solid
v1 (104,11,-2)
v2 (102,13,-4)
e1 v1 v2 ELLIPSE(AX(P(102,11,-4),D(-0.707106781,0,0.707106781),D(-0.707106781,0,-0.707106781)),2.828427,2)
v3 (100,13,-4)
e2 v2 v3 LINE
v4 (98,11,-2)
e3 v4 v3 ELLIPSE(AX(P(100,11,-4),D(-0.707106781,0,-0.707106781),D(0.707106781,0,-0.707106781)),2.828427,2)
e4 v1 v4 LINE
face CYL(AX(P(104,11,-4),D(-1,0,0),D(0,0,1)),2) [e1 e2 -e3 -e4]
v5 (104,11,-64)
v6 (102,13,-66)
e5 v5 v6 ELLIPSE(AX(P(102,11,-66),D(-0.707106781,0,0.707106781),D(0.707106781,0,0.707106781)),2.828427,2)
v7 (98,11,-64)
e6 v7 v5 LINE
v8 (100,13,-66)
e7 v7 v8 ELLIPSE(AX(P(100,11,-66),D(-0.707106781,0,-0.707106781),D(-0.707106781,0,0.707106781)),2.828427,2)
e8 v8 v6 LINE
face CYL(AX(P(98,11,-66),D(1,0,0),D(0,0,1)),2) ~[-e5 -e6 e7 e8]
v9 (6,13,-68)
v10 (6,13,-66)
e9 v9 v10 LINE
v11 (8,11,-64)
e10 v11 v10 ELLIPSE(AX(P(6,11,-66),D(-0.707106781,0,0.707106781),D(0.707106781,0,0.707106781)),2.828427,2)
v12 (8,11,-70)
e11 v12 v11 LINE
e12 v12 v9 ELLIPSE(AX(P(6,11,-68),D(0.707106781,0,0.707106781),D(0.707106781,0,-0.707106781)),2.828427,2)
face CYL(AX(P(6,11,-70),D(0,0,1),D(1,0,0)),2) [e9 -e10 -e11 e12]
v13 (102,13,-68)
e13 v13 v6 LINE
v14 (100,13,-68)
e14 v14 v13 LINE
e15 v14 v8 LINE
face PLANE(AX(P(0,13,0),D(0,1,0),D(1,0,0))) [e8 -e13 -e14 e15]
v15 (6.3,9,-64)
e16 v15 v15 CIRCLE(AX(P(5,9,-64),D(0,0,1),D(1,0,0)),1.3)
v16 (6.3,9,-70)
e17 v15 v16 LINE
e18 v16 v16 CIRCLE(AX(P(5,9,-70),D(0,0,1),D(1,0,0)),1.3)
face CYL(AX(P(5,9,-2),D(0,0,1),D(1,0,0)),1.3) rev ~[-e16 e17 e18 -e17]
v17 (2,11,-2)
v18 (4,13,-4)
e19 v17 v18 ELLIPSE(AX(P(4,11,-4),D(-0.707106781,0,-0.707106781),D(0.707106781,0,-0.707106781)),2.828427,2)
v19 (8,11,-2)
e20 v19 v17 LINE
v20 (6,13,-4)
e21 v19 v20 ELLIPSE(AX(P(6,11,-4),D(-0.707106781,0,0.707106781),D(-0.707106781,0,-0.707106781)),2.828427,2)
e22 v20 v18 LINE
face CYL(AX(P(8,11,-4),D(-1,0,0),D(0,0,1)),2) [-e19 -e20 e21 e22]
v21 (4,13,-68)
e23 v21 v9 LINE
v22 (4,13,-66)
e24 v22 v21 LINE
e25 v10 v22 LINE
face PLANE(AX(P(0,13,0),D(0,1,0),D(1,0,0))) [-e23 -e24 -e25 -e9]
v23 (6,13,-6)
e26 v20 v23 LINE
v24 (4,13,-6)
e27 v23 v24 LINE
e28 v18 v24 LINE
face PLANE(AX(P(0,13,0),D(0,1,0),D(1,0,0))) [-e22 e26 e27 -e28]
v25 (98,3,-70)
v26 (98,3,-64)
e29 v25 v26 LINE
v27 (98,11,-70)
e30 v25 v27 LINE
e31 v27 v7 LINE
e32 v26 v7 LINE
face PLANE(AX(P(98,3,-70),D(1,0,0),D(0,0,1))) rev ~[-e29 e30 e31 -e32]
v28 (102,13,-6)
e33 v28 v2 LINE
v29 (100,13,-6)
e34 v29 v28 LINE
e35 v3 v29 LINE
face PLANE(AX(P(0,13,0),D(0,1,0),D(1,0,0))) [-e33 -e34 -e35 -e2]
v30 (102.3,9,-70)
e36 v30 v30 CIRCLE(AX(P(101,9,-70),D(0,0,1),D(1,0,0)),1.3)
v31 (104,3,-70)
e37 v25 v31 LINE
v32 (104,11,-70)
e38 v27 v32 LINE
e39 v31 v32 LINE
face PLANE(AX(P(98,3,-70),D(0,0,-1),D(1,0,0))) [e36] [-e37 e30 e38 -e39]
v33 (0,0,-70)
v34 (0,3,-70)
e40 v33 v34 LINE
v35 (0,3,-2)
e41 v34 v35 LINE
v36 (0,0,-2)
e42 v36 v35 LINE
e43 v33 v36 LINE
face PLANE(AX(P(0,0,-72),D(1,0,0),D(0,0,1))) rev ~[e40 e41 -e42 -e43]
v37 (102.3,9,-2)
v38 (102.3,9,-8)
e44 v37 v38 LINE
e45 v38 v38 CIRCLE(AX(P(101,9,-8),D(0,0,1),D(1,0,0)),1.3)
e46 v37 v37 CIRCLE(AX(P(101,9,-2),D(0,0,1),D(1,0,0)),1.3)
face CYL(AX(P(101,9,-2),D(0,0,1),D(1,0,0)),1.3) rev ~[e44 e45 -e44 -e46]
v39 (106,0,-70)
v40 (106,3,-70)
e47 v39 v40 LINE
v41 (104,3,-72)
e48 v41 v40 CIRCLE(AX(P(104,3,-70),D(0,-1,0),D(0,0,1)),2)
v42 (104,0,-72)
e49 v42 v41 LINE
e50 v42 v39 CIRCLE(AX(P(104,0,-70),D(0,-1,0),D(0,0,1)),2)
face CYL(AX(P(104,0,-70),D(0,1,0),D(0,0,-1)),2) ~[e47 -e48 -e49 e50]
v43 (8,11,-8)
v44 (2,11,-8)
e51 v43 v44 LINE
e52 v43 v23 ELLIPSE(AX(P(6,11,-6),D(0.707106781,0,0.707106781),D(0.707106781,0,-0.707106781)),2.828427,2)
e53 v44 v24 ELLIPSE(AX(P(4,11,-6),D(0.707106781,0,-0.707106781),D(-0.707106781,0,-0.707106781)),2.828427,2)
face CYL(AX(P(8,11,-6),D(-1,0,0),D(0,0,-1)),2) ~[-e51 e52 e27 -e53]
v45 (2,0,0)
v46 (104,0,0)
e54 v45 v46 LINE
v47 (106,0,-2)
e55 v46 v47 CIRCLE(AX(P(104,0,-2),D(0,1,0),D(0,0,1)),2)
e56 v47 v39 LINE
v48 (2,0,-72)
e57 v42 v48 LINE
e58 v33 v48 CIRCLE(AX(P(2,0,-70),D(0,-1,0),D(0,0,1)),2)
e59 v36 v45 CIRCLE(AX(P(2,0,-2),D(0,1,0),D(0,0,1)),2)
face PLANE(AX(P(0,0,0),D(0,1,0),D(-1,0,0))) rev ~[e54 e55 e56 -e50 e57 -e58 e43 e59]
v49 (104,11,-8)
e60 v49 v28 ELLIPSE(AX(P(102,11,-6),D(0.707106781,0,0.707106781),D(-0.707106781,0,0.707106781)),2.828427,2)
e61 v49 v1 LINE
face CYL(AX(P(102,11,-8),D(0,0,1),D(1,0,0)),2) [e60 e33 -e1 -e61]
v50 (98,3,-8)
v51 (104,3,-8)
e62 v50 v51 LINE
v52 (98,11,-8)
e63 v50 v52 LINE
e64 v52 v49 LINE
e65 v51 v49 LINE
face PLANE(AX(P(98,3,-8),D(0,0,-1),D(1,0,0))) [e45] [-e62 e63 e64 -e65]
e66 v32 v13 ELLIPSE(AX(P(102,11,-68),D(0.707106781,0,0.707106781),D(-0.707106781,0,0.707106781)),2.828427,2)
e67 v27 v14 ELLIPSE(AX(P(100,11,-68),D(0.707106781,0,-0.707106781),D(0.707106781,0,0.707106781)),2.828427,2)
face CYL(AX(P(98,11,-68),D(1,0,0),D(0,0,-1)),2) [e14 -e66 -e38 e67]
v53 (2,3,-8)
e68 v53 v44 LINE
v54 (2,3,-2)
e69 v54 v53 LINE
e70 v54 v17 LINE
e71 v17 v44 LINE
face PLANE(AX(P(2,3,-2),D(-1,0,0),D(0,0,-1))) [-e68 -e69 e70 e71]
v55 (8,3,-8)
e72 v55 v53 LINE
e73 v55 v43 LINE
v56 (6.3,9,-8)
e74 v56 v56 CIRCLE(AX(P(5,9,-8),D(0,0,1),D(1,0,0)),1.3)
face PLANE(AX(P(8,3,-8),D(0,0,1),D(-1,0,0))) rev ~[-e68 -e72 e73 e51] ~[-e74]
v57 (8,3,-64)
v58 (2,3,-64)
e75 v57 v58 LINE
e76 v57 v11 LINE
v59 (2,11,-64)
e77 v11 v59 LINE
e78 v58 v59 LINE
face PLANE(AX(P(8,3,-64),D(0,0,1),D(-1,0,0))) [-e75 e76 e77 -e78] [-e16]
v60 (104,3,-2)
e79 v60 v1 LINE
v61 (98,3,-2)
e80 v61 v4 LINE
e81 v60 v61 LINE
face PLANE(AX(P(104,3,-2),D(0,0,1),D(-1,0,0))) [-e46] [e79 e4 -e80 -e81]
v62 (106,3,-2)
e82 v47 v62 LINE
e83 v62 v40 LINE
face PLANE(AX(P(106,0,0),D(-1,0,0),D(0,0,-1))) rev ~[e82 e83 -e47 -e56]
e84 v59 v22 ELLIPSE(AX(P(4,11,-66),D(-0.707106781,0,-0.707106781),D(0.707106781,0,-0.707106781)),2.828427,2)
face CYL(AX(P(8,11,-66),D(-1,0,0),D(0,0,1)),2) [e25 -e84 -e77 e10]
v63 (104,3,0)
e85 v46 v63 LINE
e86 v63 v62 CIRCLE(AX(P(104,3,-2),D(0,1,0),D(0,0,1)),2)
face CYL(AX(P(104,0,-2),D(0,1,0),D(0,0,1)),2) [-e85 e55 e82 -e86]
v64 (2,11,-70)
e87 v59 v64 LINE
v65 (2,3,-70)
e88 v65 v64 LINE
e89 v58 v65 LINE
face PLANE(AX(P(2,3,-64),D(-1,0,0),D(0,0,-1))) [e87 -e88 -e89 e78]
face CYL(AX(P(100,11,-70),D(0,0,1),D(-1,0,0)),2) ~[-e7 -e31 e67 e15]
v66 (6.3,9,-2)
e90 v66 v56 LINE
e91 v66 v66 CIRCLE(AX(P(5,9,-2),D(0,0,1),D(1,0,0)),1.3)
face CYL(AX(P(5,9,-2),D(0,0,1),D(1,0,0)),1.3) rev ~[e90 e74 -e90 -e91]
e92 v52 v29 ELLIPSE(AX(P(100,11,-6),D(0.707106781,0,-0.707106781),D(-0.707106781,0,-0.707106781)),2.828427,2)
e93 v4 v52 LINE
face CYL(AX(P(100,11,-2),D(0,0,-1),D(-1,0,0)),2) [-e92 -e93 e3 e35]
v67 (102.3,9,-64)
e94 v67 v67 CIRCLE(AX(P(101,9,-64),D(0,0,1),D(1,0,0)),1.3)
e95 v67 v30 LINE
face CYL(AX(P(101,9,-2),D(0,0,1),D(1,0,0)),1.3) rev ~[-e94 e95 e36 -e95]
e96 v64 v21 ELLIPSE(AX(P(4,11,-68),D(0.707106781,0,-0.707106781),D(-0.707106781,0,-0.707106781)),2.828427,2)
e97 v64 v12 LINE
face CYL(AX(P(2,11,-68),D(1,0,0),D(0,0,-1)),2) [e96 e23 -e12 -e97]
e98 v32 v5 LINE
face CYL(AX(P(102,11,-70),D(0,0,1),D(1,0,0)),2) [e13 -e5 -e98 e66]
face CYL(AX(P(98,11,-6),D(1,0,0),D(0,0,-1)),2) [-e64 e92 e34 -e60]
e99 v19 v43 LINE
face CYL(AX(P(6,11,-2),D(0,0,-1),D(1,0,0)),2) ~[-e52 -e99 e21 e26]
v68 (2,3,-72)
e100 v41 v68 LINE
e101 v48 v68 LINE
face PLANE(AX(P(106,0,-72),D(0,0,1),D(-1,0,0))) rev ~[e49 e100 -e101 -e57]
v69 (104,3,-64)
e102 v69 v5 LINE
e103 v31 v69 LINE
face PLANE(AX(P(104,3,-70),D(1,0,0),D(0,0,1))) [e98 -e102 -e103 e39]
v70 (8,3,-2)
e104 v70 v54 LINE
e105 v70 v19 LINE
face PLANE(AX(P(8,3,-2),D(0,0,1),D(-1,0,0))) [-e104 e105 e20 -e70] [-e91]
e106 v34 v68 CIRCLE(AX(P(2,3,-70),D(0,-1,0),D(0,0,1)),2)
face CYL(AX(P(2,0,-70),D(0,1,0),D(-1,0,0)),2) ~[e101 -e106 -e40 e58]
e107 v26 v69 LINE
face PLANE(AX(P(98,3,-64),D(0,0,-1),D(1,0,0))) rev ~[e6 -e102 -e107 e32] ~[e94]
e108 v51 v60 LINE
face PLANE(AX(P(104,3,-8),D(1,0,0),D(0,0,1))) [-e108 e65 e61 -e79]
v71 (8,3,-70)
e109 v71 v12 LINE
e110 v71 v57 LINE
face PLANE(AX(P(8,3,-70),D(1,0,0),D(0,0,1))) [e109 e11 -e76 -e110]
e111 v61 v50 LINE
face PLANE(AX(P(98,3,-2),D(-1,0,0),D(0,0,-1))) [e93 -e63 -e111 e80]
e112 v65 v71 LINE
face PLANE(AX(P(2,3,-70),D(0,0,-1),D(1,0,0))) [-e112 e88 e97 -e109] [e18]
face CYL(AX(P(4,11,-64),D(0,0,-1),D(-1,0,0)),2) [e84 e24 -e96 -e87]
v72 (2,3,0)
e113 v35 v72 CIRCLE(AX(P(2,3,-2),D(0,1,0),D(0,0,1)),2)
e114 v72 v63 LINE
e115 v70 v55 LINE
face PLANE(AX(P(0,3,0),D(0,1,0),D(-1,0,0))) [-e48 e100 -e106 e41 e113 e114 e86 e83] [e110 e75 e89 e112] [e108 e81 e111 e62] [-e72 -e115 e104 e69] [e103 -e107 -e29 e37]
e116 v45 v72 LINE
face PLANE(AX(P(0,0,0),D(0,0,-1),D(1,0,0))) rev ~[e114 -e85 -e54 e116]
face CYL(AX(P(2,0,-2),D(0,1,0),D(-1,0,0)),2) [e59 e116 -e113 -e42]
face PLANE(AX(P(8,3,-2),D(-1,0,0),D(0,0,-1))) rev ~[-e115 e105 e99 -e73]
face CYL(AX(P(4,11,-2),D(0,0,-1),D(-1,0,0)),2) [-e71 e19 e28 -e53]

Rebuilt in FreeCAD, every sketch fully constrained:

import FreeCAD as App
import Part
import Sketcher
from FreeCAD import Vector


def edges_at(feature, points):
    """Names of the edges that pass closest to the given points."""
    edges = feature.Shape.Edges
    near = lambda p: min(range(len(edges)), key=lambda i: edges[i].distToShape(Part.Vertex(*p))[0])
    return sorted({f"Edge{near(p) + 1}" for p in points})


def add_polygon(sketch, points):
    """Adds a closed chain of lines whose ends are joined by coincident constraints."""
    first, n = sketch.GeometryCount, len(points)
    for a, b in zip(points, points[1:] + points[:1]):
        sketch.addGeometry(Part.LineSegment(App.Vector(*a, 0), App.Vector(*b, 0)), False)
    for i in range(n):
        sketch.addConstraint(Sketcher.Constraint("Coincident", first + i, 2, first + (i + 1) % n, 1))

doc = App.newDocument("Part")
body = doc.addObject("PartDesign::Body", "Body")

# Sketch on XZ plane
sketch1 = doc.addObject("Sketcher::SketchObject", "Sketch")
body.addObject(sketch1)
sketch1.AttachmentSupport = (doc.XZ_Plane, [""])
sketch1.MapMode = "FlatFace"
add_polygon(sketch1, [(0, -72), (0, 0), (106, 0), (106, -72)])  # lines 0-3
sketch1.addConstraint([
    Sketcher.Constraint("Vertical", 0),
    Sketcher.Constraint("Horizontal", 1),
    Sketcher.Constraint("Vertical", 2),
    Sketcher.Constraint("Horizontal", 3),
    Sketcher.Constraint("Coincident", 0, 2, -1, 1),
    Sketcher.Constraint("DistanceX", 1, 1, 1, 2, 106.0),
    Sketcher.Constraint("DistanceY", 0, 1, 0, 2, 72.0),
])
pad1 = doc.addObject("PartDesign::Pad", "Pad")
body.addObject(pad1)
pad1.Profile = sketch1
pad1.Length = 3
pad1.Reversed = True

# Sketch on XZ plane
sketch2 = doc.addObject("Sketcher::SketchObject", "Sketch001")
body.addObject(sketch2)
sketch2.AttachmentSupport = (doc.XZ_Plane, [""])
sketch2.MapMode = "FlatFace"
sketch2.AttachmentOffset = App.Placement(Vector(0, 0, -3), App.Rotation())
add_polygon(sketch2, [(8, -70), (2, -70), (2, -64), (8, -64)])  # lines 0-3
add_polygon(sketch2, [(104, -70), (98, -70), (98, -64), (104, -64)])  # lines 4-7
add_polygon(sketch2, [(8, -8), (2, -8), (2, -2), (8, -2)])  # lines 8-11
add_polygon(sketch2, [(104, -2), (104, -8), (98, -8), (98, -2)])  # lines 12-15
sketch2.addConstraint([
    Sketcher.Constraint("Horizontal", 0),
    Sketcher.Constraint("Vertical", 1),
    Sketcher.Constraint("Horizontal", 2),
    Sketcher.Constraint("Vertical", 3),
    Sketcher.Constraint("Horizontal", 4),
    Sketcher.Constraint("Vertical", 5),
    Sketcher.Constraint("Horizontal", 6),
    Sketcher.Constraint("Vertical", 7),
    Sketcher.Constraint("Horizontal", 8),
    Sketcher.Constraint("Vertical", 9),
    Sketcher.Constraint("Horizontal", 10),
    Sketcher.Constraint("Vertical", 11),
    Sketcher.Constraint("Vertical", 12),
    Sketcher.Constraint("Horizontal", 13),
    Sketcher.Constraint("Vertical", 14),
    Sketcher.Constraint("Horizontal", 15),
    Sketcher.Constraint("Horizontal", 3, 2, 4, 2),
    Sketcher.Constraint("Horizontal", 2, 2, 5, 2),
    Sketcher.Constraint("Horizontal", 11, 2, 12, 2),
    Sketcher.Constraint("Horizontal", 10, 2, 14, 2),
    Sketcher.Constraint("Vertical", 1, 2, 8, 2),
    Sketcher.Constraint("Vertical", 3, 2, 10, 2),
    Sketcher.Constraint("Vertical", 7, 2, 12, 2),
    Sketcher.Constraint("Vertical", 5, 2, 13, 2),
    Sketcher.Constraint("Equal", 2, 4),
    Sketcher.Constraint("Equal", 15, 1),
    Sketcher.Constraint("Equal", 7, 9),
    Sketcher.Constraint("DistanceX", 0, 2, 0, 1, 6.0),
    Sketcher.Constraint("DistanceX", -1, 1, 0, 2, 2.0),
    Sketcher.Constraint("DistanceY", 9, 2, -1, 1, 2.0),
    Sketcher.Constraint("DistanceY", 0, 2, -1, 1, 70.0),
    Sketcher.Constraint("DistanceX", -1, 1, 4, 2, 98.0),
])
pad2 = doc.addObject("PartDesign::Pad", "Pad001")
body.addObject(pad2)
pad2.Profile = sketch2
pad2.Length = 10
pad2.Reversed = True

# Sketch on XY plane
sketch3 = doc.addObject("Sketcher::SketchObject", "Sketch002")
body.addObject(sketch3)
sketch3.AttachmentSupport = (doc.XY_Plane, [""])
sketch3.MapMode = "FlatFace"
sketch3.AttachmentOffset = App.Placement(Vector(0, 0, -2), App.Rotation())
sketch3.addGeometry([
    Part.Circle(Vector(5, 9, 0), Vector(0, 0, 1), 1.3),
    Part.Circle(Vector(101, 9, 0), Vector(0, 0, 1), 1.3),
], False)
sketch3.addConstraint([
    Sketcher.Constraint("Equal", 0, 1),
    Sketcher.Constraint("Horizontal", 0, 3, 1, 3),
    Sketcher.Constraint("Diameter", 0, 2.6),
    Sketcher.Constraint("DistanceX", -1, 1, 0, 3, 5.0),
    Sketcher.Constraint("DistanceY", -1, 1, 0, 3, 9.0),
    Sketcher.Constraint("DistanceX", -1, 1, 1, 3, 101.0),
])
pocket1 = doc.addObject("PartDesign::Pocket", "Pocket")
body.addObject(pocket1)
pocket1.Profile = sketch3
pocket1.Length = 100
doc.recompute()

fillet = doc.addObject("PartDesign::Fillet", "Fillet")
body.addObject(fillet)
fillet.Base = (pocket1, edges_at(pocket1, [
    (106, 1.5, 0),
    (106, 1.5, -72),
    (0, 1.5, 0),
    (0, 1.5, -72),
    (2, 13, -67),
    (5, 13, -70),
    (8, 13, -67),
    (5, 13, -64),
    (8, 13, -5),
    (5, 13, -8),
    (2, 13, -5),
    (5, 13, -2),
    (98, 13, -5),
    (101, 13, -2),
    (104, 13, -5),
    (101, 13, -8),
    (104, 13, -67),
    (101, 13, -70),
    (98, 13, -67),
    (101, 13, -64),
]))
fillet.Radius = 2

doc.recompute()
